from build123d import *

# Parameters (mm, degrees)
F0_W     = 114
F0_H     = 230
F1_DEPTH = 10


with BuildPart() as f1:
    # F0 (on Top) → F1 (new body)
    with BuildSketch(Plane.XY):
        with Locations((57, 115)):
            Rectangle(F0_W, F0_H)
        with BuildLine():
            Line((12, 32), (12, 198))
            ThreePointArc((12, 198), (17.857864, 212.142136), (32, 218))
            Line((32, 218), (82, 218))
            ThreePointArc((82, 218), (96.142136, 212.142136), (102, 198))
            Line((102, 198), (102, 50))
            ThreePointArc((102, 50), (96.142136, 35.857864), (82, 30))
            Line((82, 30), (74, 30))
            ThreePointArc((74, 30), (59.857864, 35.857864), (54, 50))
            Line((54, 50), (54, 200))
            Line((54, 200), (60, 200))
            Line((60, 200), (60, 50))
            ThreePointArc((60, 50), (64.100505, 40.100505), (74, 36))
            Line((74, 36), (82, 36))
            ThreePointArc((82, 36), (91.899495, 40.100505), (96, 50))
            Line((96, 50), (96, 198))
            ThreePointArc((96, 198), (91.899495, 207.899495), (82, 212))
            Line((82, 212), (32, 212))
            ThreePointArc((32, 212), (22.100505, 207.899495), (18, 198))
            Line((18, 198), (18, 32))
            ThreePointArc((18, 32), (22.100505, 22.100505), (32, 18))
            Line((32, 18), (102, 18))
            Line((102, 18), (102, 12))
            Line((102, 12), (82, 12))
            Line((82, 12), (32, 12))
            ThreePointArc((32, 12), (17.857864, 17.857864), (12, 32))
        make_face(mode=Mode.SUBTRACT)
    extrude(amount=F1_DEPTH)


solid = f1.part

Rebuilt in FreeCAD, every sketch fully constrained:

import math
import FreeCAD as App
import Part
import Sketcher
from FreeCAD import Vector
Q = App.Units.Quantity


def add_polygon(sketch, points):
    """Adds a closed chain of lines whose ends are joined by coincident constraints."""
    first, n = sketch.GeometryCount, len(points)
    for a, b in zip(points, points[1:] + points[:1]):
        sketch.addGeometry(Part.LineSegment(App.Vector(*a, 0), App.Vector(*b, 0)), False)
    for i in range(n):
        sketch.addConstraint(Sketcher.Constraint("Coincident", first + i, 2, first + (i + 1) % n, 1))

doc = App.newDocument("Part")
body = doc.addObject("PartDesign::Body", "Body")

# Sketch on XY plane
sketch1 = body.newObject("Sketcher::SketchObject", "Sketch")
sketch1.AttachmentSupport = (doc.getObject("XY_Plane"), [""])
sketch1.MapMode = "FlatFace"
add_polygon(sketch1, [(0, 230), (0, 0), (114, 0), (114, 230)])  # lines 0-3
sketch1.addGeometry(Part.ArcOfCircle(Part.Circle(Vector(32, 32, 0), Vector(0, 0, 1), 20), math.radians(180), math.radians(270)), False)  # 4
sketch1.addGeometry(Part.LineSegment(Vector(12, 32, 0), Vector(12, 198, 0)), False)  # 5
sketch1.addGeometry(Part.ArcOfCircle(Part.Circle(Vector(32, 198, 0), Vector(0, 0, 1), 20), math.radians(90), math.radians(180)), False)  # 6
sketch1.addGeometry(Part.LineSegment(Vector(32, 218, 0), Vector(82, 218, 0)), False)  # 7
sketch1.addGeometry(Part.ArcOfCircle(Part.Circle(Vector(82, 198, 0), Vector(0, 0, 1), 20), math.radians(0), math.radians(90)), False)  # 8
sketch1.addGeometry(Part.LineSegment(Vector(102, 198, 0), Vector(102, 50, 0)), False)  # 9
sketch1.addGeometry(Part.ArcOfCircle(Part.Circle(Vector(82, 50, 0), Vector(0, 0, 1), 20), math.radians(-90), math.radians(0)), False)  # 10
sketch1.addGeometry(Part.LineSegment(Vector(82, 30, 0), Vector(74, 30, 0)), False)  # 11
sketch1.addGeometry(Part.ArcOfCircle(Part.Circle(Vector(74, 50, 0), Vector(0, 0, 1), 20), math.radians(180), math.radians(270)), False)  # 12
sketch1.addGeometry(Part.LineSegment(Vector(54, 50, 0), Vector(54, 200, 0)), False)  # 13
sketch1.addGeometry(Part.LineSegment(Vector(54, 200, 0), Vector(60, 200, 0)), False)  # 14
sketch1.addGeometry(Part.LineSegment(Vector(60, 200, 0), Vector(60, 50, 0)), False)  # 15
sketch1.addGeometry(Part.ArcOfCircle(Part.Circle(Vector(74, 50, 0), Vector(0, 0, 1), 14), math.radians(180), math.radians(270)), False)  # 16
sketch1.addGeometry(Part.LineSegment(Vector(74, 36, 0), Vector(82, 36, 0)), False)  # 17
sketch1.addGeometry(Part.ArcOfCircle(Part.Circle(Vector(82, 50, 0), Vector(0, 0, 1), 14), math.radians(-90), math.radians(0)), False)  # 18
sketch1.addGeometry(Part.LineSegment(Vector(96, 50, 0), Vector(96, 198, 0)), False)  # 19
sketch1.addGeometry(Part.ArcOfCircle(Part.Circle(Vector(82, 198, 0), Vector(0, 0, 1), 14), math.radians(0), math.radians(90)), False)  # 20
sketch1.addGeometry(Part.LineSegment(Vector(82, 212, 0), Vector(32, 212, 0)), False)  # 21
sketch1.addGeometry(Part.ArcOfCircle(Part.Circle(Vector(32, 198, 0), Vector(0, 0, 1), 14), math.radians(90), math.radians(180)), False)  # 22
sketch1.addGeometry(Part.LineSegment(Vector(18, 198, 0), Vector(18, 32, 0)), False)  # 23
sketch1.addGeometry(Part.ArcOfCircle(Part.Circle(Vector(32, 32, 0), Vector(0, 0, 1), 14), math.radians(180), math.radians(270)), False)  # 24
sketch1.addGeometry(Part.LineSegment(Vector(32, 18, 0), Vector(102, 18, 0)), False)  # 25
sketch1.addGeometry(Part.LineSegment(Vector(102, 18, 0), Vector(102, 12, 0)), False)  # 26
sketch1.addGeometry(Part.LineSegment(Vector(102, 12, 0), Vector(32, 12, 0)), False)  # 27
sketch1.addConstraint(Sketcher.Constraint("Tangent", 4, 1, 5, 1))
sketch1.addConstraint(Sketcher.Constraint("Tangent", 5, 2, 6, 2))
sketch1.addConstraint(Sketcher.Constraint("Tangent", 6, 1, 7, 1))
sketch1.addConstraint(Sketcher.Constraint("Tangent", 7, 2, 8, 2))
sketch1.addConstraint(Sketcher.Constraint("Tangent", 8, 1, 9, 1))
sketch1.addConstraint(Sketcher.Constraint("Tangent", 9, 2, 10, 2))
sketch1.addConstraint(Sketcher.Constraint("Tangent", 10, 1, 11, 1))
sketch1.addConstraint(Sketcher.Constraint("Tangent", 11, 2, 12, 2))
sketch1.addConstraint(Sketcher.Constraint("Tangent", 12, 1, 13, 1))
sketch1.addConstraint(Sketcher.Constraint("Coincident", 13, 2, 14, 1))
sketch1.addConstraint(Sketcher.Constraint("Coincident", 14, 2, 15, 1))
sketch1.addConstraint(Sketcher.Constraint("Tangent", 15, 2, 16, 1))
sketch1.addConstraint(Sketcher.Constraint("Tangent", 16, 2, 17, 1))
sketch1.addConstraint(Sketcher.Constraint("Tangent", 17, 2, 18, 1))
sketch1.addConstraint(Sketcher.Constraint("Tangent", 18, 2, 19, 1))
sketch1.addConstraint(Sketcher.Constraint("Tangent", 19, 2, 20, 1))
sketch1.addConstraint(Sketcher.Constraint("Tangent", 20, 2, 21, 1))
sketch1.addConstraint(Sketcher.Constraint("Tangent", 21, 2, 22, 1))
sketch1.addConstraint(Sketcher.Constraint("Tangent", 22, 2, 23, 1))
sketch1.addConstraint(Sketcher.Constraint("Tangent", 23, 2, 24, 1))
sketch1.addConstraint(Sketcher.Constraint("Tangent", 24, 2, 25, 1))
sketch1.addConstraint(Sketcher.Constraint("Coincident", 25, 2, 26, 1))
sketch1.addConstraint(Sketcher.Constraint("Coincident", 26, 2, 27, 1))
sketch1.addConstraint(Sketcher.Constraint("Tangent", 27, 2, 4, 2))
sketch1.addConstraint(Sketcher.Constraint("Vertical", 0))
sketch1.addConstraint(Sketcher.Constraint("Horizontal", 1))
sketch1.addConstraint(Sketcher.Constraint("Vertical", 2))
sketch1.addConstraint(Sketcher.Constraint("Horizontal", 3))
sketch1.addConstraint(Sketcher.Constraint("Vertical", 5))
sketch1.addConstraint(Sketcher.Constraint("Horizontal", 7))
sketch1.addConstraint(Sketcher.Constraint("Vertical", 9))
sketch1.addConstraint(Sketcher.Constraint("Horizontal", 11))
sketch1.addConstraint(Sketcher.Constraint("Vertical", 13))
sketch1.addConstraint(Sketcher.Constraint("Horizontal", 14))
sketch1.addConstraint(Sketcher.Constraint("Vertical", 15))
sketch1.addConstraint(Sketcher.Constraint("Horizontal", 17))
sketch1.addConstraint(Sketcher.Constraint("Vertical", 19))
sketch1.addConstraint(Sketcher.Constraint("Horizontal", 21))
sketch1.addConstraint(Sketcher.Constraint("Vertical", 23))
sketch1.addConstraint(Sketcher.Constraint("Horizontal", 25))
sketch1.addConstraint(Sketcher.Constraint("Vertical", 26))
sketch1.addConstraint(Sketcher.Constraint("Horizontal", 27))
sketch1.addConstraint(Sketcher.Constraint("Coincident", 0, 2, -1, 1))
sketch1.addConstraint(Sketcher.Constraint("Coincident", 16, 3, 12, 3))
sketch1.addConstraint(Sketcher.Constraint("Coincident", 18, 3, 10, 3))
sketch1.addConstraint(Sketcher.Constraint("Coincident", 20, 3, 8, 3))
sketch1.addConstraint(Sketcher.Constraint("Coincident", 22, 3, 6, 3))
sketch1.addConstraint(Sketcher.Constraint("Coincident", 24, 3, 4, 3))
sketch1.addConstraint(Sketcher.Constraint("Equal", 4, 6))
sketch1.addConstraint(Sketcher.Constraint("Equal", 6, 8))
sketch1.addConstraint(Sketcher.Constraint("Equal", 8, 10))
sketch1.addConstraint(Sketcher.Constraint("Equal", 10, 12))
sketch1.addConstraint(Sketcher.Constraint("Vertical", 9, 2, 25, 2))
sketch1.addConstraint(Sketcher.Constraint("Radius", 4, Q("19.999999 mm")))
sketch1.addConstraint(Sketcher.Constraint("Radius", 16, Q("14 mm")))
sketch1.addConstraint(Sketcher.Constraint("DistanceX", 1, 1, 1, 2, Q("114 mm")))
sketch1.addConstraint(Sketcher.Constraint("DistanceX", 7, 1, 7, 2, Q("50 mm")))
sketch1.addConstraint(Sketcher.Constraint("DistanceX", 11, 2, 11, 1, Q("8 mm")))
sketch1.addConstraint(Sketcher.Constraint("DistanceY", 0, 2, 0, 1, Q("230 mm")))
sketch1.addConstraint(Sketcher.Constraint("DistanceY", 5, 1, 5, 2, Q("166 mm")))
sketch1.addConstraint(Sketcher.Constraint("DistanceY", 9, 2, 9, 1, Q("148 mm")))
sketch1.addConstraint(Sketcher.Constraint("DistanceY", 13, 1, 13, 2, Q("150 mm")))
sketch1.addConstraint(Sketcher.Constraint("DistanceX", -1, 1, 4, 3, Q("31.999999 mm")))
sketch1.addConstraint(Sketcher.Constraint("DistanceY", -1, 1, 4, 3, Q("31.999999 mm")))
pad1 = body.newObject("PartDesign::Pad", "Pad")
pad1.Profile = sketch1
pad1.Length = 10

doc.recompute()
